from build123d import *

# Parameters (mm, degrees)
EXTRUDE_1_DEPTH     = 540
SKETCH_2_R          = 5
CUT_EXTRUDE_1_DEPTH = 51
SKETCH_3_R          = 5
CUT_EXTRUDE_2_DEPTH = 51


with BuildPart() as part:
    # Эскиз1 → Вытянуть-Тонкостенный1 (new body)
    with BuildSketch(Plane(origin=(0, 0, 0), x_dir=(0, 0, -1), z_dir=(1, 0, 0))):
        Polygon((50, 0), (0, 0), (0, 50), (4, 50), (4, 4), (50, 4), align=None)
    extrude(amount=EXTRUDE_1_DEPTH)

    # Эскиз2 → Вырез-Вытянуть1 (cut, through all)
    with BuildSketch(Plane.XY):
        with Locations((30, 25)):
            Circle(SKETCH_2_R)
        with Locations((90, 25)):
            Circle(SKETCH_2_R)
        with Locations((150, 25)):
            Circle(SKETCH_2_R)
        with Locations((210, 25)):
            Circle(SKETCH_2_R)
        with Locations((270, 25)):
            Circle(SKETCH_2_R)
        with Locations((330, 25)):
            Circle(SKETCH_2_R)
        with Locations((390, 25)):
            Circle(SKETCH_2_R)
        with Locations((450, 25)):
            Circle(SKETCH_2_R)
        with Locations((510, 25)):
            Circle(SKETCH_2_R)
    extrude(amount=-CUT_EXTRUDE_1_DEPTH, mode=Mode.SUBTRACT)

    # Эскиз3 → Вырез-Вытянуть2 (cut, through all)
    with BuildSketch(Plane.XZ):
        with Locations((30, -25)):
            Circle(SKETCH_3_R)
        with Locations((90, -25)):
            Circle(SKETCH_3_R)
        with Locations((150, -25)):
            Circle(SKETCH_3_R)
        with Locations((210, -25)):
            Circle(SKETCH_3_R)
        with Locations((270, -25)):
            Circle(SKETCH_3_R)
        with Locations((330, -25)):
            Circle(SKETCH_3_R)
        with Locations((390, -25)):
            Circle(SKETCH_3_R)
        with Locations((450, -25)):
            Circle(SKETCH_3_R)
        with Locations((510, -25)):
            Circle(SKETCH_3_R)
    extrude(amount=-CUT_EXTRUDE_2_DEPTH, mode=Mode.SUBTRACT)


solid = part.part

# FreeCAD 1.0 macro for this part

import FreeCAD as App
import Part
import Sketcher
from FreeCAD import Vector
Q = App.Units.Quantity


def add_polygon(sketch, points):
    """Adds a closed chain of lines whose ends are joined by coincident constraints."""
    first, n = sketch.GeometryCount, len(points)
    for a, b in zip(points, points[1:] + points[:1]):
        sketch.addGeometry(Part.LineSegment(App.Vector(*a, 0), App.Vector(*b, 0)), False)
    for i in range(n):
        sketch.addConstraint(Sketcher.Constraint("Coincident", first + i, 2, first + (i + 1) % n, 1))

doc = App.newDocument("Part")
params = doc.addObject("Spreadsheet::Sheet", "Params")
for row, (alias, value) in enumerate([
    ("sketch1_width", "4 mm"),
    ("sketch1_width2", "46 mm"),
    ("pad1_length", "540 mm"),
    ("sketch2_diameter", "10 mm"),
    ("sketch3_diameter", "10 mm"),
], start=1):
    params.set(f"A{row}", alias)
    params.set(f"B{row}", "=" + value)
    params.setAlias(f"B{row}", alias)

body = doc.addObject("PartDesign::Body", "Body")

sketch1 = body.newObject("Sketcher::SketchObject", "Sketch")
sketch1.AttachmentSupport = (doc.getObject("YZ_Plane"), [""])
sketch1.MapMode = "FlatFace"
add_polygon(sketch1, [(0, 0), (0, -50), (4, -50), (4, -4), (50, -4), (50, 0)])
sketch1.addConstraint([
    Sketcher.Constraint("Vertical", 0),
    Sketcher.Constraint("Horizontal", 1),
    Sketcher.Constraint("Vertical", 2),
    Sketcher.Constraint("Horizontal", 3),
    Sketcher.Constraint("Vertical", 4),
    Sketcher.Constraint("Horizontal", 5),
    Sketcher.Constraint("Coincident", 5, 2, -1, 1),
    Sketcher.Constraint("Equal", 5, 0),
    Sketcher.Constraint("Equal", 3, 2),
    Sketcher.Constraint("DistanceX", 1, 1, 1, 2, Q("4 mm")),
    Sketcher.Constraint("DistanceX", 3, 1, 3, 2, Q("46 mm")),
])
sketch1.setExpression("Constraints[15]", "Params.sketch1_width")
sketch1.setExpression("Constraints[16]", "Params.sketch1_width2")
pad1 = body.newObject("PartDesign::Pad", "Pad")
pad1.Profile = sketch1
pad1.setExpression("Length", "Params.pad1_length")

sketch2 = body.newObject("Sketcher::SketchObject", "Sketch001")
sketch2.AttachmentSupport = (doc.getObject("XY_Plane"), [""])
sketch2.MapMode = "FlatFace"
sketch2.addGeometry([
    Part.Circle(Vector(30, 25, 0), Vector(0, 0, 1), 5),
    Part.Circle(Vector(90, 25, 0), Vector(0, 0, 1), 5),
    Part.Circle(Vector(150, 25, 0), Vector(0, 0, 1), 5),
    Part.Circle(Vector(210, 25, 0), Vector(0, 0, 1), 5),
    Part.Circle(Vector(270, 25, 0), Vector(0, 0, 1), 5),
    Part.Circle(Vector(330, 25, 0), Vector(0, 0, 1), 5),
    Part.Circle(Vector(390, 25, 0), Vector(0, 0, 1), 5),
    Part.Circle(Vector(450, 25, 0), Vector(0, 0, 1), 5),
    Part.Circle(Vector(510, 25, 0), Vector(0, 0, 1), 5),
], False)
sketch2.addConstraint([
    Sketcher.Constraint("Equal", 0, 1),
    Sketcher.Constraint("Equal", 1, 2),
    Sketcher.Constraint("Equal", 2, 3),
    Sketcher.Constraint("Equal", 3, 4),
    Sketcher.Constraint("Equal", 4, 5),
    Sketcher.Constraint("Equal", 5, 6),
    Sketcher.Constraint("Equal", 6, 7),
    Sketcher.Constraint("Equal", 7, 8),
    Sketcher.Constraint("Horizontal", 0, 3, 1, 3),
    Sketcher.Constraint("Horizontal", 1, 3, 2, 3),
    Sketcher.Constraint("Horizontal", 2, 3, 3, 3),
    Sketcher.Constraint("Horizontal", 3, 3, 4, 3),
    Sketcher.Constraint("Horizontal", 4, 3, 5, 3),
    Sketcher.Constraint("Horizontal", 5, 3, 6, 3),
    Sketcher.Constraint("Horizontal", 6, 3, 7, 3),
    Sketcher.Constraint("Horizontal", 7, 3, 8, 3),
    Sketcher.Constraint("Diameter", 0, Q("10 mm")),
    Sketcher.Constraint("DistanceX", -1, 1, 0, 3, Q("30 mm")),
    Sketcher.Constraint("DistanceY", -1, 1, 0, 3, Q("25 mm")),
    Sketcher.Constraint("DistanceX", -1, 1, 1, 3, Q("90 mm")),
    Sketcher.Constraint("DistanceX", -1, 1, 2, 3, Q("150 mm")),
    Sketcher.Constraint("DistanceX", -1, 1, 3, 3, Q("210 mm")),
    Sketcher.Constraint("DistanceX", -1, 1, 4, 3, Q("270 mm")),
    Sketcher.Constraint("DistanceX", -1, 1, 5, 3, Q("330 mm")),
    Sketcher.Constraint("DistanceX", -1, 1, 6, 3, Q("390 mm")),
    Sketcher.Constraint("DistanceX", -1, 1, 7, 3, Q("450 mm")),
    Sketcher.Constraint("DistanceX", -1, 1, 8, 3, Q("510 mm")),
])
sketch2.setExpression("Constraints[16]", "Params.sketch2_diameter")
pocket1 = body.newObject("PartDesign::Pocket", "Pocket")
pocket1.Profile = sketch2
pocket1.Type = "ThroughAll"

sketch3 = body.newObject("Sketcher::SketchObject", "Sketch002")
sketch3.AttachmentSupport = (doc.getObject("XZ_Plane"), [""])
sketch3.MapMode = "FlatFace"
sketch3.addGeometry([
    Part.Circle(Vector(30, -25, 0), Vector(0, 0, 1), 5),
    Part.Circle(Vector(90, -25, 0), Vector(0, 0, 1), 5),
    Part.Circle(Vector(150, -25, 0), Vector(0, 0, 1), 5),
    Part.Circle(Vector(210, -25, 0), Vector(0, 0, 1), 5),
    Part.Circle(Vector(270, -25, 0), Vector(0, 0, 1), 5),
    Part.Circle(Vector(330, -25, 0), Vector(0, 0, 1), 5),
    Part.Circle(Vector(390, -25, 0), Vector(0, 0, 1), 5),
    Part.Circle(Vector(450, -25, 0), Vector(0, 0, 1), 5),
    Part.Circle(Vector(510, -25, 0), Vector(0, 0, 1), 5),
], False)
sketch3.addConstraint([
    Sketcher.Constraint("Equal", 0, 1),
    Sketcher.Constraint("Equal", 1, 2),
    Sketcher.Constraint("Equal", 2, 3),
    Sketcher.Constraint("Equal", 3, 4),
    Sketcher.Constraint("Equal", 4, 5),
    Sketcher.Constraint("Equal", 5, 6),
    Sketcher.Constraint("Equal", 6, 7),
    Sketcher.Constraint("Equal", 7, 8),
    Sketcher.Constraint("Horizontal", 0, 3, 1, 3),
    Sketcher.Constraint("Horizontal", 1, 3, 2, 3),
    Sketcher.Constraint("Horizontal", 2, 3, 3, 3),
    Sketcher.Constraint("Horizontal", 3, 3, 4, 3),
    Sketcher.Constraint("Horizontal", 4, 3, 5, 3),
    Sketcher.Constraint("Horizontal", 5, 3, 6, 3),
    Sketcher.Constraint("Horizontal", 6, 3, 7, 3),
    Sketcher.Constraint("Horizontal", 7, 3, 8, 3),
    Sketcher.Constraint("Diameter", 0, Q("10 mm")),
    Sketcher.Constraint("DistanceX", -1, 1, 0, 3, Q("30 mm")),
    Sketcher.Constraint("DistanceY", 0, 3, -1, 1, Q("25 mm")),
    Sketcher.Constraint("DistanceX", -1, 1, 1, 3, Q("90 mm")),
    Sketcher.Constraint("DistanceX", -1, 1, 2, 3, Q("150 mm")),
    Sketcher.Constraint("DistanceX", -1, 1, 3, 3, Q("210 mm")),
    Sketcher.Constraint("DistanceX", -1, 1, 4, 3, Q("270 mm")),
    Sketcher.Constraint("DistanceX", -1, 1, 5, 3, Q("330 mm")),
    Sketcher.Constraint("DistanceX", -1, 1, 6, 3, Q("390 mm")),
    Sketcher.Constraint("DistanceX", -1, 1, 7, 3, Q("450 mm")),
    Sketcher.Constraint("DistanceX", -1, 1, 8, 3, Q("510 mm")),
])
sketch3.setExpression("Constraints[16]", "Params.sketch3_diameter")
pocket2 = body.newObject("PartDesign::Pocket", "Pocket001")
pocket2.Profile = sketch3
pocket2.Type = "ThroughAll"

doc.recompute()
